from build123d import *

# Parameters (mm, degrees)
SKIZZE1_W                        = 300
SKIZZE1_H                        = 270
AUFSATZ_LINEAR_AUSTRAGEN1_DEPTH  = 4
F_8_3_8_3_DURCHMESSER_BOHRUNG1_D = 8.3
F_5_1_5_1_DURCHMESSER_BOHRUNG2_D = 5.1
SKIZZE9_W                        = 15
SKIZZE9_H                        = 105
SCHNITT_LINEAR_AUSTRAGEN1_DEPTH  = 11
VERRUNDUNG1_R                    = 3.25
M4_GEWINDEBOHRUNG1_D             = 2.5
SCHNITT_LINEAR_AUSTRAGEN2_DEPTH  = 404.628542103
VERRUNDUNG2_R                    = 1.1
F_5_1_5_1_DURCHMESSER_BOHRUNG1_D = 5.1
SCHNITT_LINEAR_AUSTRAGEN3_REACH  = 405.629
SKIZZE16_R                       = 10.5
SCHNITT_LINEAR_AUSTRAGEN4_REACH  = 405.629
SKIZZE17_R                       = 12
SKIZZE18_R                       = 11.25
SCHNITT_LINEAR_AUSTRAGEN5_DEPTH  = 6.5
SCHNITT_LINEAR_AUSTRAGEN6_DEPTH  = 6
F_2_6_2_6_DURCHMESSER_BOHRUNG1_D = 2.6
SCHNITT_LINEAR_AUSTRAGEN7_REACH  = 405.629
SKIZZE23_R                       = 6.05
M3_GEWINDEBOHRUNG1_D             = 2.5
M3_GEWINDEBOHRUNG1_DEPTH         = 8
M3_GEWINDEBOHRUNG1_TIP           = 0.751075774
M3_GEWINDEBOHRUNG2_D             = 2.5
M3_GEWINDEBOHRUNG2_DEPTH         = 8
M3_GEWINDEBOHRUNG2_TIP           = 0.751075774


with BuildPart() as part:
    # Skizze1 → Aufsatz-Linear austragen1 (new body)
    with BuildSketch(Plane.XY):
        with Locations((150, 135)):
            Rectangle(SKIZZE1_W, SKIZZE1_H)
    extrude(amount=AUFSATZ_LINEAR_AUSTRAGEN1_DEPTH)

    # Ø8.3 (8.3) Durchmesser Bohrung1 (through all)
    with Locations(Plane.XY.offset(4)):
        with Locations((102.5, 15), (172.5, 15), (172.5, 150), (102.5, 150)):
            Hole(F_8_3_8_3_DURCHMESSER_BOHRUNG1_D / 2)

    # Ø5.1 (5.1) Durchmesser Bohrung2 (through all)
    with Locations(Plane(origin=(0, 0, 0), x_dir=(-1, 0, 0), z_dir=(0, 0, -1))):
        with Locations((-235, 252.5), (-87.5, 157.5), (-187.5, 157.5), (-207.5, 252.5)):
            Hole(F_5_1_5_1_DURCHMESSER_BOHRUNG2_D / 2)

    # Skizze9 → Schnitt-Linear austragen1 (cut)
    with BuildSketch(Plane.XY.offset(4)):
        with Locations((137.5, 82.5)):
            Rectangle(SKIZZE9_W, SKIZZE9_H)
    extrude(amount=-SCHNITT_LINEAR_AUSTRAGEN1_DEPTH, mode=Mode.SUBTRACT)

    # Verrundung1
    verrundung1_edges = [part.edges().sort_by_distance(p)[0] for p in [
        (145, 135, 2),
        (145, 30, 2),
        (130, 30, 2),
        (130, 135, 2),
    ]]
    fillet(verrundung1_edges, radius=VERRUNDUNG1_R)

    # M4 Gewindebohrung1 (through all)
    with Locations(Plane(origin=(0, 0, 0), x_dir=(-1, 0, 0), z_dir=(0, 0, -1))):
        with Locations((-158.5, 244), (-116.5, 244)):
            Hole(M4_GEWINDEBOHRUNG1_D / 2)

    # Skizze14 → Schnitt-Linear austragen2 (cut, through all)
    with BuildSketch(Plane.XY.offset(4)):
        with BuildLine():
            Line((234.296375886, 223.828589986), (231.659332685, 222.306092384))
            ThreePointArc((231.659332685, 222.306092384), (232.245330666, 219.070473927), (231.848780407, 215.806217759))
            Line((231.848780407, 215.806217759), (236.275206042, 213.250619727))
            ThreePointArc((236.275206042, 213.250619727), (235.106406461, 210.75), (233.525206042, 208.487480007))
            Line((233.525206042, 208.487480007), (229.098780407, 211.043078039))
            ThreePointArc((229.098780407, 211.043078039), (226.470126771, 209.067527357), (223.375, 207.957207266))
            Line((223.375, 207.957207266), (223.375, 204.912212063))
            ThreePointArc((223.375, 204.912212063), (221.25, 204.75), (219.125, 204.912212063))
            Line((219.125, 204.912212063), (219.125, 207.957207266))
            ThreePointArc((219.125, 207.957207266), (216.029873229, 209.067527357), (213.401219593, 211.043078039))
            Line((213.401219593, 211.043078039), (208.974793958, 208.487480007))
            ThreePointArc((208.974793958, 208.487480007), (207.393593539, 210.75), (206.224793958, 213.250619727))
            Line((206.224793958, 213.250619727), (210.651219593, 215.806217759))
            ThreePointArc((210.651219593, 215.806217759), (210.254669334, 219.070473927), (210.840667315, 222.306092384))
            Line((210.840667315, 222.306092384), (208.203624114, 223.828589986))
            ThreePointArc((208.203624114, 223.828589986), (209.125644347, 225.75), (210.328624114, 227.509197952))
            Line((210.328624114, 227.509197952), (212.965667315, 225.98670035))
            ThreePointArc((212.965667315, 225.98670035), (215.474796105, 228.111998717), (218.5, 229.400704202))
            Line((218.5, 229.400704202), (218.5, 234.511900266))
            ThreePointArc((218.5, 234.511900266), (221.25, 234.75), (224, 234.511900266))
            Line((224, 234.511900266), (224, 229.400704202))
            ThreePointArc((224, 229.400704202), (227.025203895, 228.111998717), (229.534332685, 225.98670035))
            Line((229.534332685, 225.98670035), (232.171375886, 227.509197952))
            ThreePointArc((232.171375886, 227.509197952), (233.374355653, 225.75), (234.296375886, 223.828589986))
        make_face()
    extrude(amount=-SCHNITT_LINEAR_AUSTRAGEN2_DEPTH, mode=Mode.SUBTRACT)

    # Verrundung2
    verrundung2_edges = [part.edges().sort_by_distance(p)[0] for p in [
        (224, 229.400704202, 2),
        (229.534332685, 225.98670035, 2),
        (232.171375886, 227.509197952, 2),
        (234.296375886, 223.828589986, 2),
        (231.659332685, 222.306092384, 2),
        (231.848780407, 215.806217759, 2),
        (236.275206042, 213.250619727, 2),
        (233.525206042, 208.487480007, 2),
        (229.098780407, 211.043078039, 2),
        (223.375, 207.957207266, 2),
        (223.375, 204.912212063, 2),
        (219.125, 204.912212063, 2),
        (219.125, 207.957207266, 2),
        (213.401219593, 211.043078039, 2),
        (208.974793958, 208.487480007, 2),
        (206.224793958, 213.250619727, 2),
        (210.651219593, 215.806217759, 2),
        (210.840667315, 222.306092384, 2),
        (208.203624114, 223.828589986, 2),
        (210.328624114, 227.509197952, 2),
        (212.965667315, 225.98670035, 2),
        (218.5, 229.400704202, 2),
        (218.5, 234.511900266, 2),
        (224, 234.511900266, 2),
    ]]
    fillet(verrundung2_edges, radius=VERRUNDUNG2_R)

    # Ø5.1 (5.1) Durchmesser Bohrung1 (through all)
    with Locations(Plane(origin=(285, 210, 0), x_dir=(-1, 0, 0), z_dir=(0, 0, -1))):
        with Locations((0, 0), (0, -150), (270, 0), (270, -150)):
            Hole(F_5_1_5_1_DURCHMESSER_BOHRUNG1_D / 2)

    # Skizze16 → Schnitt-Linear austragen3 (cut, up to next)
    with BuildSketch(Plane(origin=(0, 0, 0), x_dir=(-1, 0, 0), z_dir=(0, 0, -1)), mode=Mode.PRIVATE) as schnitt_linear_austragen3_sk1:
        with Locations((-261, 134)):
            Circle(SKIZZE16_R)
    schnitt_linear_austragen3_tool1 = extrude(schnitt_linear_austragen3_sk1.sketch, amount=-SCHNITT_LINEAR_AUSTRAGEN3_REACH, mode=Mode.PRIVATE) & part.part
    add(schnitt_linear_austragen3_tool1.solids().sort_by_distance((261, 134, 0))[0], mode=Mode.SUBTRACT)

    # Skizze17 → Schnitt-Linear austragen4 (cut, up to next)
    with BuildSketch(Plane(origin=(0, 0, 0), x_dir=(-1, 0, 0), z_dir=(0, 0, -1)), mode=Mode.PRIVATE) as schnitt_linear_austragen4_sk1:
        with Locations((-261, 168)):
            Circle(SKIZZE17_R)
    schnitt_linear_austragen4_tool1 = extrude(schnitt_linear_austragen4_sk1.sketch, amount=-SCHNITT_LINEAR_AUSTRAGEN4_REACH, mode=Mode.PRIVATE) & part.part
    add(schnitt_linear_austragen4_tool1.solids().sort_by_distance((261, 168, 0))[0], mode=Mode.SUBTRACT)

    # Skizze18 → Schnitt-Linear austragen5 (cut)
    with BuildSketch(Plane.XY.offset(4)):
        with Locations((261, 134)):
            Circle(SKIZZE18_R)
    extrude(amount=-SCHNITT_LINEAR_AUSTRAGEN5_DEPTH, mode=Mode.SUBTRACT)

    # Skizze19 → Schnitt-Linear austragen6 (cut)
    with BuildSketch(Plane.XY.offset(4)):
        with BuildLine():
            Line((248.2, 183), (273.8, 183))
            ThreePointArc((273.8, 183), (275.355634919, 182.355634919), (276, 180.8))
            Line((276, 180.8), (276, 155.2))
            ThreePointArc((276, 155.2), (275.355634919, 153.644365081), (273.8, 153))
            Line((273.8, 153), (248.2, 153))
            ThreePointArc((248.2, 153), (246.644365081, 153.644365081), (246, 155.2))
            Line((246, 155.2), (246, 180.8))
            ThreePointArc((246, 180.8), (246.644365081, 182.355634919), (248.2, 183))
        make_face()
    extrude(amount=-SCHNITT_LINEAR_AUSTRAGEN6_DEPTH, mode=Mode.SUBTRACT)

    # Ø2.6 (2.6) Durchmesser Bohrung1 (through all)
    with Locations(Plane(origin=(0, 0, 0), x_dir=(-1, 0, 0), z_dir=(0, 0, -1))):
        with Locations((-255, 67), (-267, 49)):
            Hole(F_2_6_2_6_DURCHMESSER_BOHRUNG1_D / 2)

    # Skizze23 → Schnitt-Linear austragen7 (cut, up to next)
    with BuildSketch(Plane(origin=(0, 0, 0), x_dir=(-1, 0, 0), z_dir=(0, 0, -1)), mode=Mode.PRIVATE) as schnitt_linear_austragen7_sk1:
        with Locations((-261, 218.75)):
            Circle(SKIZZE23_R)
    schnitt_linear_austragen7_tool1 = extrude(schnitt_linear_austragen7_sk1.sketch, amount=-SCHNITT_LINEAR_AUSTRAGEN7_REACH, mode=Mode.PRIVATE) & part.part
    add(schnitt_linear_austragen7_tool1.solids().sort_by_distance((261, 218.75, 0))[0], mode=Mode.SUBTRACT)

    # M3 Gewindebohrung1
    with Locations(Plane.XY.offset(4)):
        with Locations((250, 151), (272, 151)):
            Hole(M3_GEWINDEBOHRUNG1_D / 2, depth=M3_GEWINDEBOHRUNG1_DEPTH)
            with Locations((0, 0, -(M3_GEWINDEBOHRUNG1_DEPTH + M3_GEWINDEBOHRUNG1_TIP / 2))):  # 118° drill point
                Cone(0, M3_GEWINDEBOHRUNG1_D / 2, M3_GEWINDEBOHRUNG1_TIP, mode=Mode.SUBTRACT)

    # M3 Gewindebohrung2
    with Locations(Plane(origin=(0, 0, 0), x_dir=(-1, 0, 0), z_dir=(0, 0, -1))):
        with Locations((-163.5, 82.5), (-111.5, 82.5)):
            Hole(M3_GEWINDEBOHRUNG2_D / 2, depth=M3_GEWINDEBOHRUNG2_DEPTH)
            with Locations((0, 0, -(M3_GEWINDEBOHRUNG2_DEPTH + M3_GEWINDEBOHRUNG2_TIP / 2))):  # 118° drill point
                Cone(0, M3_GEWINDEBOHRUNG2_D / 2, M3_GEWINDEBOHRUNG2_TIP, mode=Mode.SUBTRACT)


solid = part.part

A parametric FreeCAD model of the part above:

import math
import FreeCAD as App
import Part
import Sketcher
Q = App.Units.Quantity


def edges_at(feature, points):
    """Names of the edges that pass closest to the given points."""
    edges = feature.Shape.Edges
    near = lambda p: min(range(len(edges)), key=lambda i: edges[i].distToShape(Part.Vertex(*p))[0])
    return sorted({f"Edge{near(p) + 1}" for p in points})

doc = App.newDocument("Part")
body = doc.addObject("PartDesign::Body", "Body")

# Sketch on XY plane
sketch1 = body.newObject("Sketcher::SketchObject", "Sketch")
sketch1.AttachmentSupport = (doc.getObject("XY_Plane"), [""])
sketch1.MapMode = "FlatFace"
sketch1.addGeometry(Part.LineSegment(App.Vector(0, 270, 0), App.Vector(0, 0, 0)), False)
sketch1.addGeometry(Part.LineSegment(App.Vector(0, 0, 0), App.Vector(300, 0, 0)), False)
sketch1.addGeometry(Part.LineSegment(App.Vector(300, 0, 0), App.Vector(300, 270, 0)), False)
sketch1.addGeometry(Part.LineSegment(App.Vector(300, 270, 0), App.Vector(0, 270, 0)), False)
sketch1.addConstraint(Sketcher.Constraint("Coincident", 0, 2, 1, 1))
sketch1.addConstraint(Sketcher.Constraint("Coincident", 1, 2, 2, 1))
sketch1.addConstraint(Sketcher.Constraint("Coincident", 2, 2, 3, 1))
sketch1.addConstraint(Sketcher.Constraint("Coincident", 3, 2, 0, 1))
sketch1.addConstraint(Sketcher.Constraint("Vertical", 0))
sketch1.addConstraint(Sketcher.Constraint("Horizontal", 1))
sketch1.addConstraint(Sketcher.Constraint("Vertical", 2))
sketch1.addConstraint(Sketcher.Constraint("Horizontal", 3))
sketch1.addConstraint(Sketcher.Constraint("Coincident", 0, 2, -1, 1))
sketch1.addConstraint(Sketcher.Constraint("DistanceX", 1, 1, 1, 2, Q("300 mm")))
sketch1.addConstraint(Sketcher.Constraint("DistanceY", 0, 2, 0, 1, Q("270 mm")))
pad1 = body.newObject("PartDesign::Pad", "Pad")
pad1.Profile = sketch1
pad1.Length = 4

# Sketch on XY plane
sketch2 = body.newObject("Sketcher::SketchObject", "Sketch001")
sketch2.AttachmentSupport = (doc.getObject("XY_Plane"), [""])
sketch2.MapMode = "FlatFace"
sketch2.AttachmentOffset = App.Placement(App.Vector(0, 0, 4), App.Rotation())
sketch2.addGeometry(Part.Circle(App.Vector(102.5, 15, 0), App.Vector(0, 0, 1), 4.2), False)
sketch2.addGeometry(Part.Circle(App.Vector(172.5, 15, 0), App.Vector(0, 0, 1), 4.2), False)
sketch2.addGeometry(Part.Circle(App.Vector(172.5, 150, 0), App.Vector(0, 0, 1), 4.2), False)
sketch2.addGeometry(Part.Circle(App.Vector(102.5, 150, 0), App.Vector(0, 0, 1), 4.2), False)
sketch2.addConstraint(Sketcher.Constraint("Equal", 0, 1))
sketch2.addConstraint(Sketcher.Constraint("Equal", 1, 2))
sketch2.addConstraint(Sketcher.Constraint("Equal", 2, 3))
sketch2.addConstraint(Sketcher.Constraint("Horizontal", 0, 3, 1, 3))
sketch2.addConstraint(Sketcher.Constraint("Horizontal", 2, 3, 3, 3))
sketch2.addConstraint(Sketcher.Constraint("Vertical", 1, 3, 2, 3))
sketch2.addConstraint(Sketcher.Constraint("Vertical", 0, 3, 3, 3))
sketch2.addConstraint(Sketcher.Constraint("Diameter", 0, Q("8.3 mm")))
sketch2.addConstraint(Sketcher.Constraint("DistanceY", -1, 1, 0, 3, Q("15 mm")))
sketch2.addConstraint(Sketcher.Constraint("DistanceY", -1, 1, 2, 3, Q("150 mm")))
sketch2.addConstraint(Sketcher.Constraint("DistanceX", 0, 3, 1, 3, Q("70 mm")))
sketch2.addConstraint(Sketcher.Constraint("DistanceX", -1, 1, 0, 3, Q("102.5 mm")))
doc.recompute()
hole = body.newObject("PartDesign::Hole", "Hole")
hole.Profile = sketch2
hole.ThreadType = "None"
hole.Diameter = 8.3
hole.DepthType = "ThroughAll"

# Sketch on XY plane
sketch3 = body.newObject("Sketcher::SketchObject", "Sketch002")
sketch3.AttachmentSupport = (doc.getObject("XY_Plane"), [""])
sketch3.MapMode = "FlatFace"
sketch3.addGeometry(Part.Circle(App.Vector(235, 252.5, 0), App.Vector(0, 0, 1), 2.5), False)
sketch3.addGeometry(Part.Circle(App.Vector(87.5, 157.5, 0), App.Vector(0, 0, 1), 2.5), False)
sketch3.addGeometry(Part.Circle(App.Vector(187.5, 157.5, 0), App.Vector(0, 0, 1), 2.5), False)
sketch3.addGeometry(Part.Circle(App.Vector(207.5, 252.5, 0), App.Vector(0, 0, 1), 2.5), False)
sketch3.addConstraint(Sketcher.Constraint("Equal", 0, 1))
sketch3.addConstraint(Sketcher.Constraint("Equal", 1, 2))
sketch3.addConstraint(Sketcher.Constraint("Equal", 2, 3))
sketch3.addConstraint(Sketcher.Constraint("Horizontal", 1, 3, 2, 3))
sketch3.addConstraint(Sketcher.Constraint("Horizontal", 0, 3, 3, 3))
sketch3.addConstraint(Sketcher.Constraint("Diameter", 0, Q("5.1 mm")))
sketch3.addConstraint(Sketcher.Constraint("DistanceX", -1, 1, 0, 3, Q("235 mm")))
sketch3.addConstraint(Sketcher.Constraint("DistanceY", 1, 3, 0, 3, Q("95 mm")))
sketch3.addConstraint(Sketcher.Constraint("DistanceX", 1, 3, 2, 3, Q("100 mm")))
sketch3.addConstraint(Sketcher.Constraint("DistanceX", 2, 3, 3, 3, Q("20 mm")))
sketch3.addConstraint(Sketcher.Constraint("DistanceY", -1, 1, 0, 3, Q("252.5 mm")))
sketch3.addConstraint(Sketcher.Constraint("DistanceX", -1, 1, 1, 3, Q("87.5 mm")))
doc.recompute()
hole2 = body.newObject("PartDesign::Hole", "Hole001")
hole2.Profile = sketch3
hole2.ThreadType = "None"
hole2.Diameter = 5.1
hole2.DepthType = "ThroughAll"
hole2.Reversed = True

# Sketch on XY plane
sketch4 = body.newObject("Sketcher::SketchObject", "Sketch003")
sketch4.AttachmentSupport = (doc.getObject("XY_Plane"), [""])
sketch4.MapMode = "FlatFace"
sketch4.AttachmentOffset = App.Placement(App.Vector(0, 0, 4), App.Rotation())
sketch4.addGeometry(Part.LineSegment(App.Vector(130, 135, 0), App.Vector(130, 30, 0)), False)
sketch4.addGeometry(Part.LineSegment(App.Vector(130, 30, 0), App.Vector(145, 30, 0)), False)
sketch4.addGeometry(Part.LineSegment(App.Vector(145, 30, 0), App.Vector(145, 135, 0)), False)
sketch4.addGeometry(Part.LineSegment(App.Vector(145, 135, 0), App.Vector(130, 135, 0)), False)
sketch4.addConstraint(Sketcher.Constraint("Coincident", 0, 2, 1, 1))
sketch4.addConstraint(Sketcher.Constraint("Coincident", 1, 2, 2, 1))
sketch4.addConstraint(Sketcher.Constraint("Coincident", 2, 2, 3, 1))
sketch4.addConstraint(Sketcher.Constraint("Coincident", 3, 2, 0, 1))
sketch4.addConstraint(Sketcher.Constraint("Vertical", 0))
sketch4.addConstraint(Sketcher.Constraint("Horizontal", 1))
sketch4.addConstraint(Sketcher.Constraint("Vertical", 2))
sketch4.addConstraint(Sketcher.Constraint("Horizontal", 3))
sketch4.addConstraint(Sketcher.Constraint("DistanceX", 1, 1, 1, 2, Q("15 mm")))
sketch4.addConstraint(Sketcher.Constraint("DistanceY", 0, 2, 0, 1, Q("105 mm")))
sketch4.addConstraint(Sketcher.Constraint("DistanceX", -1, 1, 0, 2, Q("130 mm")))
sketch4.addConstraint(Sketcher.Constraint("DistanceY", -1, 1, 0, 2, Q("30 mm")))
pocket1 = body.newObject("PartDesign::Pocket", "Pocket")
pocket1.Profile = sketch4
pocket1.Length = 11
doc.recompute()

fillet = body.newObject("PartDesign::Fillet", "Fillet")
fillet.Base = (pocket1, edges_at(pocket1, [
    (145, 135, 2),
    (145, 30, 2),
    (130, 30, 2),
    (130, 135, 2),
]))
fillet.Radius = 3.25

# Sketch on XY plane
sketch5 = body.newObject("Sketcher::SketchObject", "Sketch004")
sketch5.AttachmentSupport = (doc.getObject("XY_Plane"), [""])
sketch5.MapMode = "FlatFace"
sketch5.addGeometry(Part.Circle(App.Vector(158.5, 244, 0), App.Vector(0, 0, 1), 1.2), False)
sketch5.addGeometry(Part.Circle(App.Vector(116.5, 244, 0), App.Vector(0, 0, 1), 1.2), False)
sketch5.addConstraint(Sketcher.Constraint("Equal", 0, 1))
sketch5.addConstraint(Sketcher.Constraint("Horizontal", 0, 3, 1, 3))
sketch5.addConstraint(Sketcher.Constraint("Diameter", 0, Q("2.5 mm")))
sketch5.addConstraint(Sketcher.Constraint("DistanceY", -1, 1, 0, 3, Q("244 mm")))
sketch5.addConstraint(Sketcher.Constraint("DistanceX", 1, 3, 0, 3, Q("42 mm")))
sketch5.addConstraint(Sketcher.Constraint("DistanceX", -1, 1, 0, 3, Q("158.5 mm")))
doc.recompute()
hole3 = body.newObject("PartDesign::Hole", "Hole002")
hole3.Profile = sketch5
hole3.ThreadType = "None"
hole3.Diameter = 2.5
hole3.DepthType = "ThroughAll"
hole3.Reversed = True

# Sketch on XY plane
sketch6 = body.newObject("Sketcher::SketchObject", "Sketch005")
sketch6.AttachmentSupport = (doc.getObject("XY_Plane"), [""])
sketch6.MapMode = "FlatFace"
sketch6.AttachmentOffset = App.Placement(App.Vector(0, 0, 4), App.Rotation())
sketch6.addGeometry(Part.LineSegment(App.Vector(231.7, 222.3, 0), App.Vector(234.3, 223.8, 0)), False)
sketch6.addGeometry(Part.ArcOfCircle(Part.Circle(App.Vector(221.2, 218.7, 0), App.Vector(0, 0, 1), 14), math.radians(21.27), math.radians(38.73)), False)
sketch6.addGeometry(Part.LineSegment(App.Vector(232.2, 227.5, 0), App.Vector(229.5, 226, 0)), False)
sketch6.addGeometry(Part.ArcOfCircle(Part.Circle(App.Vector(221.3, 218.8, 0), App.Vector(0, 0, 1), 11), math.radians(41), math.radians(76)), False)
sketch6.addGeometry(Part.LineSegment(App.Vector(224, 229.4, 0), App.Vector(224, 234.5, 0)), False)
sketch6.addGeometry(Part.ArcOfCircle(Part.Circle(App.Vector(221.2, 218.8, 0), App.Vector(0, 0, 1), 16), math.radians(80.1), math.radians(99.9)), False)
sketch6.addGeometry(Part.LineSegment(App.Vector(218.5, 234.5, 0), App.Vector(218.5, 229.4, 0)), False)
sketch6.addGeometry(Part.ArcOfCircle(Part.Circle(App.Vector(221.2, 218.8, 0), App.Vector(0, 0, 1), 11), math.radians(104), math.radians(139)), False)
sketch6.addGeometry(Part.LineSegment(App.Vector(213, 226, 0), App.Vector(210.3, 227.5, 0)), False)
sketch6.addGeometry(Part.ArcOfCircle(Part.Circle(App.Vector(221.3, 218.7, 0), App.Vector(0, 0, 1), 14), math.radians(141.27), math.radians(158.73)), False)
sketch6.addGeometry(Part.LineSegment(App.Vector(208.2, 223.8, 0), App.Vector(210.8, 222.3, 0)), False)
sketch6.addGeometry(Part.ArcOfCircle(Part.Circle(App.Vector(221.3, 218.7, 0), App.Vector(0, 0, 1), 11), math.radians(161), math.radians(196)), False)
sketch6.addGeometry(Part.LineSegment(App.Vector(210.7, 215.8, 0), App.Vector(206.2, 213.3, 0)), False)
sketch6.addGeometry(Part.ArcOfCircle(Part.Circle(App.Vector(221.2, 218.7, 0), App.Vector(0, 0, 1), 16), math.radians(-159.9), math.radians(-140.1)), False)
sketch6.addGeometry(Part.LineSegment(App.Vector(209, 208.5, 0), App.Vector(213.4, 211, 0)), False)
sketch6.addGeometry(Part.ArcOfCircle(Part.Circle(App.Vector(221.3, 218.8, 0), App.Vector(0, 0, 1), 11), math.radians(-136), math.radians(-101)), False)
sketch6.addGeometry(Part.LineSegment(App.Vector(219.1, 208, 0), App.Vector(219.1, 204.9, 0)), False)
sketch6.addGeometry(Part.ArcOfCircle(Part.Circle(App.Vector(221.2, 218.7, 0), App.Vector(0, 0, 1), 14), math.radians(-98.73), math.radians(-81.27)), False)
sketch6.addGeometry(Part.LineSegment(App.Vector(223.4, 204.9, 0), App.Vector(223.4, 208, 0)), False)
sketch6.addGeometry(Part.ArcOfCircle(Part.Circle(App.Vector(221.2, 218.8, 0), App.Vector(0, 0, 1), 11), math.radians(-79), math.radians(-44)), False)
sketch6.addGeometry(Part.LineSegment(App.Vector(229.1, 211, 0), App.Vector(233.5, 208.5, 0)), False)
sketch6.addGeometry(Part.ArcOfCircle(Part.Circle(App.Vector(221.3, 218.7, 0), App.Vector(0, 0, 1), 16), math.radians(-39.9), math.radians(-20.1)), False)
sketch6.addGeometry(Part.LineSegment(App.Vector(236.3, 213.3, 0), App.Vector(231.8, 215.8, 0)), False)
sketch6.addGeometry(Part.ArcOfCircle(Part.Circle(App.Vector(221.2, 218.7, 0), App.Vector(0, 0, 1), 11), math.radians(-16), math.radians(19)), False)
sketch6.addConstraint(Sketcher.Constraint("Coincident", 0, 2, 1, 1))
sketch6.addConstraint(Sketcher.Constraint("Coincident", 1, 2, 2, 1))
sketch6.addConstraint(Sketcher.Constraint("Coincident", 2, 2, 3, 1))
sketch6.addConstraint(Sketcher.Constraint("Coincident", 3, 2, 4, 1))
sketch6.addConstraint(Sketcher.Constraint("Coincident", 4, 2, 5, 1))
sketch6.addConstraint(Sketcher.Constraint("Coincident", 5, 2, 6, 1))
sketch6.addConstraint(Sketcher.Constraint("Coincident", 6, 2, 7, 1))
sketch6.addConstraint(Sketcher.Constraint("Coincident", 7, 2, 8, 1))
sketch6.addConstraint(Sketcher.Constraint("Coincident", 8, 2, 9, 1))
sketch6.addConstraint(Sketcher.Constraint("Coincident", 9, 2, 10, 1))
sketch6.addConstraint(Sketcher.Constraint("Coincident", 10, 2, 11, 1))
sketch6.addConstraint(Sketcher.Constraint("Coincident", 11, 2, 12, 1))
sketch6.addConstraint(Sketcher.Constraint("Coincident", 12, 2, 13, 1))
sketch6.addConstraint(Sketcher.Constraint("Coincident", 13, 2, 14, 1))
sketch6.addConstraint(Sketcher.Constraint("Coincident", 14, 2, 15, 1))
sketch6.addConstraint(Sketcher.Constraint("Coincident", 15, 2, 16, 1))
sketch6.addConstraint(Sketcher.Constraint("Coincident", 16, 2, 17, 1))
sketch6.addConstraint(Sketcher.Constraint("Coincident", 17, 2, 18, 1))
sketch6.addConstraint(Sketcher.Constraint("Coincident", 18, 2, 19, 1))
sketch6.addConstraint(Sketcher.Constraint("Coincident", 19, 2, 20, 1))
sketch6.addConstraint(Sketcher.Constraint("Coincident", 20, 2, 21, 1))
sketch6.addConstraint(Sketcher.Constraint("Coincident", 21, 2, 22, 1))
sketch6.addConstraint(Sketcher.Constraint("Coincident", 22, 2, 23, 1))
sketch6.addConstraint(Sketcher.Constraint("Coincident", 23, 2, 0, 1))
sketch6.addConstraint(Sketcher.Constraint("Vertical", 4))
sketch6.addConstraint(Sketcher.Constraint("Vertical", 6))
sketch6.addConstraint(Sketcher.Constraint("Vertical", 16))
sketch6.addConstraint(Sketcher.Constraint("Vertical", 18))
sketch6.addConstraint(Sketcher.Constraint("Coincident", 3, 3, 1, 3))
sketch6.addConstraint(Sketcher.Constraint("Coincident", 5, 3, 1, 3))
sketch6.addConstraint(Sketcher.Constraint("Coincident", 7, 3, 1, 3))
sketch6.addConstraint(Sketcher.Constraint("Coincident", 9, 3, 1, 3))
sketch6.addConstraint(Sketcher.Constraint("Coincident", 11, 3, 1, 3))
sketch6.addConstraint(Sketcher.Constraint("Coincident", 13, 3, 1, 3))
sketch6.addConstraint(Sketcher.Constraint("Coincident", 15, 3, 1, 3))
sketch6.addConstraint(Sketcher.Constraint("Coincident", 17, 3, 1, 3))
sketch6.addConstraint(Sketcher.Constraint("Coincident", 19, 3, 1, 3))
sketch6.addConstraint(Sketcher.Constraint("Coincident", 21, 3, 1, 3))
sketch6.addConstraint(Sketcher.Constraint("Coincident", 23, 3, 1, 3))
sketch6.addConstraint(Sketcher.Constraint("Equal", 3, 7))
sketch6.addConstraint(Sketcher.Constraint("Equal", 1, 9))
sketch6.addConstraint(Sketcher.Constraint("Equal", 7, 11))
sketch6.addConstraint(Sketcher.Constraint("Equal", 5, 13))
sketch6.addConstraint(Sketcher.Constraint("Equal", 11, 15))
sketch6.addConstraint(Sketcher.Constraint("Equal", 9, 17))
sketch6.addConstraint(Sketcher.Constraint("Equal", 15, 19))
sketch6.addConstraint(Sketcher.Constraint("Equal", 13, 21))
sketch6.addConstraint(Sketcher.Constraint("Equal", 19, 23))
sketch6.addConstraint(Sketcher.Constraint("Parallel", 0, 2))
sketch6.addConstraint(Sketcher.Constraint("Parallel", 8, 10))
sketch6.addConstraint(Sketcher.Constraint("Parallel", 2, 12))
sketch6.addConstraint(Sketcher.Constraint("Parallel", 12, 14))
sketch6.addConstraint(Sketcher.Constraint("Parallel", 10, 20))
sketch6.addConstraint(Sketcher.Constraint("Parallel", 20, 22))
sketch6.addConstraint(Sketcher.Constraint("Horizontal", 4, 2, 5, 2))
sketch6.addConstraint(Sketcher.Constraint("Horizontal", 2, 2, 7, 2))
sketch6.addConstraint(Sketcher.Constraint("Horizontal", 1, 2, 8, 2))
sketch6.addConstraint(Sketcher.Constraint("Horizontal", 0, 2, 9, 2))
sketch6.addConstraint(Sketcher.Constraint("Horizontal", 16, 2, 17, 2))
sketch6.addConstraint(Sketcher.Constraint("Horizontal", 14, 2, 19, 2))
sketch6.addConstraint(Sketcher.Constraint("Horizontal", 12, 2, 21, 2))
sketch6.addConstraint(Sketcher.Constraint("Equal", 0, 2))
sketch6.addConstraint(Sketcher.Constraint("Equal", 12, 14))
sketch6.addConstraint(Sketcher.Constraint("Radius", 1, Q("14 mm")))
sketch6.addConstraint(Sketcher.Constraint("Radius", 3, Q("11 mm")))
sketch6.addConstraint(Sketcher.Constraint("Radius", 5, Q("16 mm")))
sketch6.addConstraint(Sketcher.Constraint("Angle", 0, Q("30 deg")))
sketch6.addConstraint(Sketcher.Constraint("DistanceX", -1, 1, 3, 2, Q("224 mm")))
sketch6.addConstraint(Sketcher.Constraint("DistanceX", -1, 1, 5, 2, Q("218.5 mm")))
sketch6.addConstraint(Sketcher.Constraint("DistanceY", -1, 1, 1, 3, Q("218.75 mm")))
sketch6.addConstraint(Sketcher.Constraint("DistanceX", 12, 2, 13, 2, Q("2.75 mm")))
sketch6.addConstraint(Sketcher.Constraint("DistanceX", 16, 2, 17, 2, Q("4.25 mm")))
sketch6.addConstraint(Sketcher.Constraint("DistanceX", 1, 2, 0, 2, Q("2.125 mm")))
pocket2 = body.newObject("PartDesign::Pocket", "Pocket001")
pocket2.Profile = sketch6
pocket2.Type = "ThroughAll"
doc.recompute()

fillet2 = body.newObject("PartDesign::Fillet", "Fillet001")
fillet2.Base = (pocket2, edges_at(pocket2, [
    (224, 229.401, 2),
    (229.534, 225.987, 2),
    (232.171, 227.509, 2),
    (234.296, 223.829, 2),
    (231.659, 222.306, 2),
    (231.849, 215.806, 2),
    (236.275, 213.251, 2),
    (233.525, 208.487, 2),
    (229.099, 211.043, 2),
    (223.375, 207.957, 2),
    (223.375, 204.912, 2),
    (219.125, 204.912, 2),
    (219.125, 207.957, 2),
    (213.401, 211.043, 2),
    (208.975, 208.487, 2),
    (206.225, 213.251, 2),
    (210.651, 215.806, 2),
    (210.841, 222.306, 2),
    (208.204, 223.829, 2),
    (210.329, 227.509, 2),
    (212.966, 225.987, 2),
    (218.5, 229.401, 2),
    (218.5, 234.512, 2),
    (224, 234.512, 2),
]))
fillet2.Radius = 1.1

# Sketch on XY plane
sketch7 = body.newObject("Sketcher::SketchObject", "Sketch006")
sketch7.AttachmentSupport = (doc.getObject("XY_Plane"), [""])
sketch7.MapMode = "FlatFace"
sketch7.addGeometry(Part.Circle(App.Vector(285, 210, 0), App.Vector(0, 0, 1), 2.5), False)
sketch7.addGeometry(Part.Circle(App.Vector(285, 60, 0), App.Vector(0, 0, 1), 2.5), False)
sketch7.addGeometry(Part.Circle(App.Vector(15, 210, 0), App.Vector(0, 0, 1), 2.5), False)
sketch7.addGeometry(Part.Circle(App.Vector(15, 60, 0), App.Vector(0, 0, 1), 2.5), False)
sketch7.addConstraint(Sketcher.Constraint("Equal", 0, 1))
sketch7.addConstraint(Sketcher.Constraint("Equal", 1, 2))
sketch7.addConstraint(Sketcher.Constraint("Equal", 2, 3))
sketch7.addConstraint(Sketcher.Constraint("Horizontal", 0, 3, 2, 3))
sketch7.addConstraint(Sketcher.Constraint("Horizontal", 1, 3, 3, 3))
sketch7.addConstraint(Sketcher.Constraint("Vertical", 0, 3, 1, 3))
sketch7.addConstraint(Sketcher.Constraint("Vertical", 2, 3, 3, 3))
sketch7.addConstraint(Sketcher.Constraint("Diameter", 0, Q("5.1 mm")))
sketch7.addConstraint(Sketcher.Constraint("DistanceX", -1, 1, 0, 3, Q("285 mm")))
sketch7.addConstraint(Sketcher.Constraint("DistanceY", -1, 1, 0, 3, Q("210 mm")))
sketch7.addConstraint(Sketcher.Constraint("DistanceY", -1, 1, 1, 3, Q("60 mm")))
sketch7.addConstraint(Sketcher.Constraint("DistanceX", -1, 1, 2, 3, Q("15 mm")))
doc.recompute()
hole4 = body.newObject("PartDesign::Hole", "Hole003")
hole4.Profile = sketch7
hole4.ThreadType = "None"
hole4.Diameter = 5.1
hole4.DepthType = "ThroughAll"
hole4.Reversed = True

# Sketch on XY plane
sketch8 = body.newObject("Sketcher::SketchObject", "Sketch007")
sketch8.AttachmentSupport = (doc.getObject("XY_Plane"), [""])
sketch8.MapMode = "FlatFace"
sketch8.addGeometry(Part.Circle(App.Vector(261, 134, 0), App.Vector(0, 0, 1), 10), False)
sketch8.addConstraint(Sketcher.Constraint("Diameter", 0, Q("21 mm")))
sketch8.addConstraint(Sketcher.Constraint("DistanceX", -1, 1, 0, 3, Q("261 mm")))
sketch8.addConstraint(Sketcher.Constraint("DistanceY", -1, 1, 0, 3, Q("134 mm")))
pocket3 = body.newObject("PartDesign::Pocket", "Pocket002")
pocket3.Profile = sketch8
pocket3.Type = "UpToFirst"
pocket3.Reversed = True

# Sketch on XY plane
sketch9 = body.newObject("Sketcher::SketchObject", "Sketch008")
sketch9.AttachmentSupport = (doc.getObject("XY_Plane"), [""])
sketch9.MapMode = "FlatFace"
sketch9.addGeometry(Part.Circle(App.Vector(261, 168, 0), App.Vector(0, 0, 1), 12), False)
sketch9.addConstraint(Sketcher.Constraint("Diameter", 0, Q("24 mm")))
sketch9.addConstraint(Sketcher.Constraint("DistanceX", -1, 1, 0, 3, Q("261 mm")))
sketch9.addConstraint(Sketcher.Constraint("DistanceY", -1, 1, 0, 3, Q("168 mm")))
pocket4 = body.newObject("PartDesign::Pocket", "Pocket003")
pocket4.Profile = sketch9
pocket4.Type = "UpToFirst"
pocket4.Reversed = True

# Sketch on XY plane
sketch10 = body.newObject("Sketcher::SketchObject", "Sketch009")
sketch10.AttachmentSupport = (doc.getObject("XY_Plane"), [""])
sketch10.MapMode = "FlatFace"
sketch10.AttachmentOffset = App.Placement(App.Vector(0, 0, 4), App.Rotation())
sketch10.addGeometry(Part.Circle(App.Vector(261, 134, 0), App.Vector(0, 0, 1), 11), False)
sketch10.addConstraint(Sketcher.Constraint("Diameter", 0, Q("22.5 mm")))
sketch10.addConstraint(Sketcher.Constraint("DistanceX", -1, 1, 0, 3, Q("261 mm")))
sketch10.addConstraint(Sketcher.Constraint("DistanceY", -1, 1, 0, 3, Q("134 mm")))
pocket5 = body.newObject("PartDesign::Pocket", "Pocket004")
pocket5.Profile = sketch10
pocket5.Length = 6.5

# Sketch on XY plane
sketch11 = body.newObject("Sketcher::SketchObject", "Sketch010")
sketch11.AttachmentSupport = (doc.getObject("XY_Plane"), [""])
sketch11.MapMode = "FlatFace"
sketch11.AttachmentOffset = App.Placement(App.Vector(0, 0, 4), App.Rotation())
sketch11.addGeometry(Part.LineSegment(App.Vector(273.8, 183, 0), App.Vector(248.2, 183, 0)), False)
sketch11.addGeometry(Part.ArcOfCircle(Part.Circle(App.Vector(248.2, 180.8, 0), App.Vector(0, 0, 1), 2.2), math.radians(90), math.radians(180)), False)
sketch11.addGeometry(Part.LineSegment(App.Vector(246, 180.8, 0), App.Vector(246, 155.2, 0)), False)
sketch11.addGeometry(Part.ArcOfCircle(Part.Circle(App.Vector(248.2, 155.2, 0), App.Vector(0, 0, 1), 2.2), math.radians(180), math.radians(270)), False)
sketch11.addGeometry(Part.LineSegment(App.Vector(248.2, 153, 0), App.Vector(273.8, 153, 0)), False)
sketch11.addGeometry(Part.ArcOfCircle(Part.Circle(App.Vector(273.8, 155.2, 0), App.Vector(0, 0, 1), 2.2), math.radians(-90), math.radians(0)), False)
sketch11.addGeometry(Part.LineSegment(App.Vector(276, 155.2, 0), App.Vector(276, 180.8, 0)), False)
sketch11.addGeometry(Part.ArcOfCircle(Part.Circle(App.Vector(273.8, 180.8, 0), App.Vector(0, 0, 1), 2.2), math.radians(0), math.radians(90)), False)
sketch11.addConstraint(Sketcher.Constraint("Tangent", 0, 2, 1, 1))
sketch11.addConstraint(Sketcher.Constraint("Tangent", 1, 2, 2, 1))
sketch11.addConstraint(Sketcher.Constraint("Tangent", 2, 2, 3, 1))
sketch11.addConstraint(Sketcher.Constraint("Tangent", 3, 2, 4, 1))
sketch11.addConstraint(Sketcher.Constraint("Tangent", 4, 2, 5, 1))
sketch11.addConstraint(Sketcher.Constraint("Tangent", 5, 2, 6, 1))
sketch11.addConstraint(Sketcher.Constraint("Tangent", 6, 2, 7, 1))
sketch11.addConstraint(Sketcher.Constraint("Tangent", 7, 2, 0, 1))
sketch11.addConstraint(Sketcher.Constraint("Horizontal", 0))
sketch11.addConstraint(Sketcher.Constraint("Vertical", 2))
sketch11.addConstraint(Sketcher.Constraint("Horizontal", 4))
sketch11.addConstraint(Sketcher.Constraint("Vertical", 6))
sketch11.addConstraint(Sketcher.Constraint("Equal", 1, 3))
sketch11.addConstraint(Sketcher.Constraint("Equal", 3, 5))
sketch11.addConstraint(Sketcher.Constraint("Equal", 5, 7))
sketch11.addConstraint(Sketcher.Constraint("Equal", 4, 2))
sketch11.addConstraint(Sketcher.Constraint("Radius", 1, Q("2.2 mm")))
sketch11.addConstraint(Sketcher.Constraint("DistanceX", 0, 2, 0, 1, Q("25.6 mm")))
sketch11.addConstraint(Sketcher.Constraint("DistanceY", -1, 1, 0, 2, Q("183 mm")))
sketch11.addConstraint(Sketcher.Constraint("DistanceX", -1, 1, 1, 2, Q("246 mm")))
pocket6 = body.newObject("PartDesign::Pocket", "Pocket005")
pocket6.Profile = sketch11
pocket6.Length = 6

# Sketch on XY plane
sketch12 = body.newObject("Sketcher::SketchObject", "Sketch011")
sketch12.AttachmentSupport = (doc.getObject("XY_Plane"), [""])
sketch12.MapMode = "FlatFace"
sketch12.addGeometry(Part.Circle(App.Vector(255, 67, 0), App.Vector(0, 0, 1), 1.3), False)
sketch12.addGeometry(Part.Circle(App.Vector(267, 49, 0), App.Vector(0, 0, 1), 1.3), False)
sketch12.addConstraint(Sketcher.Constraint("Equal", 0, 1))
sketch12.addConstraint(Sketcher.Constraint("Diameter", 0, Q("2.6 mm")))
sketch12.addConstraint(Sketcher.Constraint("DistanceX", -1, 1, 0, 3, Q("255 mm")))
sketch12.addConstraint(Sketcher.Constraint("DistanceY", -1, 1, 0, 3, Q("67 mm")))
sketch12.addConstraint(Sketcher.Constraint("DistanceX", -1, 1, 1, 3, Q("267 mm")))
sketch12.addConstraint(Sketcher.Constraint("DistanceY", -1, 1, 1, 3, Q("49 mm")))
doc.recompute()
hole5 = body.newObject("PartDesign::Hole", "Hole004")
hole5.Profile = sketch12
hole5.ThreadType = "None"
hole5.Diameter = 2.6
hole5.DepthType = "ThroughAll"
hole5.Reversed = True

# Sketch on XY plane
sketch13 = body.newObject("Sketcher::SketchObject", "Sketch012")
sketch13.AttachmentSupport = (doc.getObject("XY_Plane"), [""])
sketch13.MapMode = "FlatFace"
sketch13.addGeometry(Part.Circle(App.Vector(261, 219, 0), App.Vector(0, 0, 1), 6), False)
sketch13.addConstraint(Sketcher.Constraint("Diameter", 0, Q("12.1 mm")))
sketch13.addConstraint(Sketcher.Constraint("DistanceX", -1, 1, 0, 3, Q("261 mm")))
sketch13.addConstraint(Sketcher.Constraint("DistanceY", -1, 1, 0, 3, Q("218.75 mm")))
pocket7 = body.newObject("PartDesign::Pocket", "Pocket006")
pocket7.Profile = sketch13
pocket7.Type = "UpToFirst"
pocket7.Reversed = True

# Sketch on XY plane
sketch14 = body.newObject("Sketcher::SketchObject", "Sketch013")
sketch14.AttachmentSupport = (doc.getObject("XY_Plane"), [""])
sketch14.MapMode = "FlatFace"
sketch14.AttachmentOffset = App.Placement(App.Vector(0, 0, 4), App.Rotation())
sketch14.addGeometry(Part.Circle(App.Vector(250, 151, 0), App.Vector(0, 0, 1), 1.2), False)
sketch14.addGeometry(Part.Circle(App.Vector(272, 151, 0), App.Vector(0, 0, 1), 1.2), False)
sketch14.addConstraint(Sketcher.Constraint("Equal", 0, 1))
sketch14.addConstraint(Sketcher.Constraint("Horizontal", 0, 3, 1, 3))
sketch14.addConstraint(Sketcher.Constraint("Diameter", 0, Q("2.5 mm")))
sketch14.addConstraint(Sketcher.Constraint("DistanceX", -1, 1, 0, 3, Q("250 mm")))
sketch14.addConstraint(Sketcher.Constraint("DistanceY", -1, 1, 0, 3, Q("151 mm")))
sketch14.addConstraint(Sketcher.Constraint("DistanceX", -1, 1, 1, 3, Q("272 mm")))
doc.recompute()
hole6 = body.newObject("PartDesign::Hole", "Hole005")
hole6.Profile = sketch14
hole6.ThreadType = "None"
hole6.Diameter = 2.5
hole6.DepthType = "Dimension"
hole6.Depth = 8
hole6.DrillPoint = "Angled"
hole6.DrillPointAngle = 118

# Sketch on XY plane
sketch15 = body.newObject("Sketcher::SketchObject", "Sketch014")
sketch15.AttachmentSupport = (doc.getObject("XY_Plane"), [""])
sketch15.MapMode = "FlatFace"
sketch15.addGeometry(Part.Circle(App.Vector(163.5, 82.5, 0), App.Vector(0, 0, 1), 1.2), False)
sketch15.addGeometry(Part.Circle(App.Vector(111.5, 82.5, 0), App.Vector(0, 0, 1), 1.2), False)
sketch15.addConstraint(Sketcher.Constraint("Equal", 0, 1))
sketch15.addConstraint(Sketcher.Constraint("Horizontal", 0, 3, 1, 3))
sketch15.addConstraint(Sketcher.Constraint("Diameter", 0, Q("2.5 mm")))
sketch15.addConstraint(Sketcher.Constraint("DistanceX", 1, 3, 0, 3, Q("52 mm")))
sketch15.addConstraint(Sketcher.Constraint("DistanceX", -1, 1, 0, 3, Q("163.5 mm")))
sketch15.addConstraint(Sketcher.Constraint("DistanceY", -1, 1, 0, 3, Q("82.5 mm")))
doc.recompute()
hole7 = body.newObject("PartDesign::Hole", "Hole006")
hole7.Profile = sketch15
hole7.ThreadType = "None"
hole7.Diameter = 2.5
hole7.DepthType = "Dimension"
hole7.Depth = 8
hole7.DrillPoint = "Angled"
hole7.DrillPointAngle = 118
hole7.Reversed = True

doc.recompute()
